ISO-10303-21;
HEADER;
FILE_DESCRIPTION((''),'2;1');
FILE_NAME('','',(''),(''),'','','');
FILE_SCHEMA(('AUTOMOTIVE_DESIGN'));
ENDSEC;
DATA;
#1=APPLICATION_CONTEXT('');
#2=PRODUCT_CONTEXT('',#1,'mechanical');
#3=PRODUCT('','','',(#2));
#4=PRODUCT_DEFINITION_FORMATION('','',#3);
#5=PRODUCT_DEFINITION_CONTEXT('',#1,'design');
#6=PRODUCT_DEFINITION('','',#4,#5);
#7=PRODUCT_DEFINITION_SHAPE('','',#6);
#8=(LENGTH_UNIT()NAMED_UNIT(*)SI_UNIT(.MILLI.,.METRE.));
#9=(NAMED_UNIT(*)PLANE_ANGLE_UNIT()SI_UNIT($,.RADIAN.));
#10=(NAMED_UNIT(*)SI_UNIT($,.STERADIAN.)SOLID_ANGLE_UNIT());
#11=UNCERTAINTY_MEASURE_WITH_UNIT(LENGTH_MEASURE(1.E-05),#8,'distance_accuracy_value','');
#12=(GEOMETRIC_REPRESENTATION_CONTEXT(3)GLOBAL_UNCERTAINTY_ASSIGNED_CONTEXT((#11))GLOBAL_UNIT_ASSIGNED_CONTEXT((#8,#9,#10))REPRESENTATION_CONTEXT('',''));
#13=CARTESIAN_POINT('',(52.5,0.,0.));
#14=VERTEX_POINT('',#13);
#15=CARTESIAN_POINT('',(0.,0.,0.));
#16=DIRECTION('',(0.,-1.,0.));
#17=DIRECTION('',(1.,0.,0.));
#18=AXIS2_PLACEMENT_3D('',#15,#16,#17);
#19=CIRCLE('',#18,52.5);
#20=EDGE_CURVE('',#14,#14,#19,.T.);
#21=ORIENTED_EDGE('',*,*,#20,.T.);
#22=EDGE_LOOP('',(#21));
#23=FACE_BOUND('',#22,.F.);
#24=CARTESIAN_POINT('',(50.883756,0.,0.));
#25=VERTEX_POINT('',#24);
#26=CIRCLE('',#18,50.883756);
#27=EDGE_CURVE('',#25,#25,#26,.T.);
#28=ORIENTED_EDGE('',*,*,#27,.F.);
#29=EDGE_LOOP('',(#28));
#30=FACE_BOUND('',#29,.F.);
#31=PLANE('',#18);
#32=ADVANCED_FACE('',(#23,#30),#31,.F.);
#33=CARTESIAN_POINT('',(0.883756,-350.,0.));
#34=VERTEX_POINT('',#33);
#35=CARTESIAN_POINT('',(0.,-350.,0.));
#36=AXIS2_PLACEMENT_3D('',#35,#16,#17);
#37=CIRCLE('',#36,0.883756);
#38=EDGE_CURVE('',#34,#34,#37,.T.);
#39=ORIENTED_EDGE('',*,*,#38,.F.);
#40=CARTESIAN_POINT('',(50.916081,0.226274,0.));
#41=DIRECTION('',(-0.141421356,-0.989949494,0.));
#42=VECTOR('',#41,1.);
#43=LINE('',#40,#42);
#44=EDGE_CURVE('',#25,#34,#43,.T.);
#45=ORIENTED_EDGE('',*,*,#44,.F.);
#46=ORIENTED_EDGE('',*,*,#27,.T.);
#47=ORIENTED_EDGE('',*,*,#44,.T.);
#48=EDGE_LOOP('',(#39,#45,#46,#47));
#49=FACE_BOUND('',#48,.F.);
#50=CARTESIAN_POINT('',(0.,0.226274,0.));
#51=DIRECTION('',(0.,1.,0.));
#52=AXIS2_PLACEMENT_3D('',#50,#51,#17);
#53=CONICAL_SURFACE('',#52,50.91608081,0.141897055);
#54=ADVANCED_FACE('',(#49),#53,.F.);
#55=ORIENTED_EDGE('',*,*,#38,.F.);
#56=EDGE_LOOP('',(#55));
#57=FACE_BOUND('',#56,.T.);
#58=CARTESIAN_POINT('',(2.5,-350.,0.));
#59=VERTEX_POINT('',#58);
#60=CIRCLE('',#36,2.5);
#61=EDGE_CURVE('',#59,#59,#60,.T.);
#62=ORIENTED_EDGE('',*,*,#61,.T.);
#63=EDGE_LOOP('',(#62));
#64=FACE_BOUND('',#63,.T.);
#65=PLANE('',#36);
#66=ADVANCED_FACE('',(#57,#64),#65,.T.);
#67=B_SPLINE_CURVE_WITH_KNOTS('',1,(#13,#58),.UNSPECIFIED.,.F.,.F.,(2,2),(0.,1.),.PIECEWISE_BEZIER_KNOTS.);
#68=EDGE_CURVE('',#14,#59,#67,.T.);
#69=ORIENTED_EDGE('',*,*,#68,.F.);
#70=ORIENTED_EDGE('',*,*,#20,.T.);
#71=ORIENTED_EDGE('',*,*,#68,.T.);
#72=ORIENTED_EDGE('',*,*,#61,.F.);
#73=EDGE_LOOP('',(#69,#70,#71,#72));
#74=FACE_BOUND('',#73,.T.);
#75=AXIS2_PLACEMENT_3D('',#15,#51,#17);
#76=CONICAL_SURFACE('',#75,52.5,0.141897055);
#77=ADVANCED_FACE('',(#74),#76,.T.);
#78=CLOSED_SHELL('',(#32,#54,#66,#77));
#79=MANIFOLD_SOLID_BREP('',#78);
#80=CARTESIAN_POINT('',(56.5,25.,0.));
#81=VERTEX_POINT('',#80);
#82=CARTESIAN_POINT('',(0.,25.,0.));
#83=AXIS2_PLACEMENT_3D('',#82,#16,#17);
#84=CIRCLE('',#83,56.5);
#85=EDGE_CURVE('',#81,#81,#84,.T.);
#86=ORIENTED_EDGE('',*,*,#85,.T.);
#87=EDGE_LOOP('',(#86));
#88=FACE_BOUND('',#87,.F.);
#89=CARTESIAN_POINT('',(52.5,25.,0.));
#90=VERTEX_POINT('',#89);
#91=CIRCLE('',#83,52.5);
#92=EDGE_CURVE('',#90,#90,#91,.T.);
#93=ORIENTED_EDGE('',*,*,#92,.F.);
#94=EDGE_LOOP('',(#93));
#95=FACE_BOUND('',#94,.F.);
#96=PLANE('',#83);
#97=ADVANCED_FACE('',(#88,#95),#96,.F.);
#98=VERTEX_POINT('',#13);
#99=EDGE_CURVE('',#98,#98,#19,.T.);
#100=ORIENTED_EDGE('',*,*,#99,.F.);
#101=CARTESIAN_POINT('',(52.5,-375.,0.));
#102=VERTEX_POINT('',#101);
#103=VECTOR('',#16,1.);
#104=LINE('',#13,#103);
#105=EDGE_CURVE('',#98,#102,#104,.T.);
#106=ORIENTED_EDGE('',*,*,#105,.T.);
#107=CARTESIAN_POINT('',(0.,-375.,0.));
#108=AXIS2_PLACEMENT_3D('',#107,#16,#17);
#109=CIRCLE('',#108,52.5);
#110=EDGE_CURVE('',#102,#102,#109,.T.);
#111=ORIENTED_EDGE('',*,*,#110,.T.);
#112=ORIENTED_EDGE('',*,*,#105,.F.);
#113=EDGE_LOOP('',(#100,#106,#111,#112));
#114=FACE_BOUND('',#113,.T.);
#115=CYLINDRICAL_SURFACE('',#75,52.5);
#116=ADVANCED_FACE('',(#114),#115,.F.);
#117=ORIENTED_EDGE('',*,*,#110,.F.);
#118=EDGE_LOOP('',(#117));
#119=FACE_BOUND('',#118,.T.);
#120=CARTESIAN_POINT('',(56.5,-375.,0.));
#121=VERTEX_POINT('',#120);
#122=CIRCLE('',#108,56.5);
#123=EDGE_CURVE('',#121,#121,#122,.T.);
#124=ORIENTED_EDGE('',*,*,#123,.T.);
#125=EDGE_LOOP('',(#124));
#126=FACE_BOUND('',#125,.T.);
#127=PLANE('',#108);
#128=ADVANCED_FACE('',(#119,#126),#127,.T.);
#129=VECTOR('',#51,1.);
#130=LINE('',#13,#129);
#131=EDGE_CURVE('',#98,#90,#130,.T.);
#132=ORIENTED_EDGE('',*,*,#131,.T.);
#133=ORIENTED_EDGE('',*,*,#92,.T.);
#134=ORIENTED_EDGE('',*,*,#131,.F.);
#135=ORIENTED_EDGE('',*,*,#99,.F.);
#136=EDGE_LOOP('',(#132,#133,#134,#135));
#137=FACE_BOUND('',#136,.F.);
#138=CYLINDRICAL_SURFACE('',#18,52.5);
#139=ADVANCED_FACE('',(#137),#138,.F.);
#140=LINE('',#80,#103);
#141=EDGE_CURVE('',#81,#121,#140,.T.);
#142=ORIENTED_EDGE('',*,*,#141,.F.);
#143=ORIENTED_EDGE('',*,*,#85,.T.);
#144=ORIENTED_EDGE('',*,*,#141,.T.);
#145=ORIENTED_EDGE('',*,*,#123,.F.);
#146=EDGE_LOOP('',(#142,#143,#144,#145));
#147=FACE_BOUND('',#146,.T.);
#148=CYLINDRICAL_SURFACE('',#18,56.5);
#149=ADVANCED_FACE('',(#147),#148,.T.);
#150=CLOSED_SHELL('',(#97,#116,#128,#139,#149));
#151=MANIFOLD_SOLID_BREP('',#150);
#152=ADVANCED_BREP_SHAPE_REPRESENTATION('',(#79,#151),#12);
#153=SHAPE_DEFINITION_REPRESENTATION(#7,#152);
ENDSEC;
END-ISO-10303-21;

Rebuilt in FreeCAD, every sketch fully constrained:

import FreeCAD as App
import Part
import Sketcher
from FreeCAD import Vector


def faces_at(feature, points):
    """Names of the faces that lie closest to the given points."""
    faces = feature.Shape.Faces
    near = lambda p: min(range(len(faces)), key=lambda i: faces[i].distToShape(Part.Vertex(*p))[0])
    return sorted({f"Face{near(p) + 1}" for p in points})

doc = App.newDocument("Part")
params = doc.addObject("Spreadsheet::Sheet", "Params")
for row, (alias, value) in enumerate([
    ("sketch1_diameter", "105 mm"),
    ("sketch2_diameter", "5 mm"),
    ("thickness_wall", "1.6 mm"),
    ("sketch3_diameter", "113 mm"),
    ("sketch3_diameter2", "105 mm"),
    ("pad1_length", "375 mm"),
    ("pad1_length2", "25 mm"),
], start=1):
    params.set(f"A{row}", alias)
    params.set(f"B{row}", "=" + value)
    params.setAlias(f"B{row}", alias)

body = doc.addObject("PartDesign::Body", "Body")

sketch1 = body.newObject("Sketcher::SketchObject", "Sketch")
sketch1.AttachmentSupport = (doc.getObject("XZ_Plane"), [""])
sketch1.MapMode = "FlatFace"
sketch1.addGeometry(Part.Circle(Vector(0, 0, 0), Vector(0, 0, 1), 52), False)
sketch1.addConstraint(Sketcher.Constraint("Coincident", 0, 3, -1, 1))
sketch1.addConstraint(Sketcher.Constraint("Diameter", 0, 105.0))
sketch1.setExpression("Constraints[1]", "Params.sketch1_diameter")

sketch2 = body.newObject("Sketcher::SketchObject", "Sketch001")
sketch2.AttachmentSupport = (doc.getObject("XZ_Plane"), [""])
sketch2.MapMode = "FlatFace"
sketch2.AttachmentOffset = App.Placement(Vector(0, 0, 350), App.Rotation())
sketch2.addGeometry(Part.Circle(Vector(0, 0, 0), Vector(0, 0, 1), 2.5), False)
sketch2.addConstraint(Sketcher.Constraint("Coincident", 0, 3, -1, 1))
sketch2.addConstraint(Sketcher.Constraint("Diameter", 0, 5.0))
sketch2.setExpression("Constraints[1]", "Params.sketch2_diameter")

additiveloft = body.newObject("PartDesign::AdditiveLoft", "AdditiveLoft")
additiveloft.Profile = sketch1
additiveloft.Sections = [sketch2]
doc.recompute()

thickness = body.newObject("PartDesign::Thickness", "Thickness")
thickness.Base = (additiveloft, faces_at(additiveloft, [(0, 0, 0), (0, -350, 0)]))
thickness.setExpression("Value", "Params.thickness_wall")
thickness.Reversed = True
thickness.Join = "Intersection"
body2 = doc.addObject("PartDesign::Body", "Body001")

sketch3 = body2.newObject("Sketcher::SketchObject", "Sketch002")
sketch3.AttachmentSupport = (doc.getObject("XZ_Plane001"), [""])
sketch3.MapMode = "FlatFace"
sketch3.addGeometry(Part.Circle(Vector(0, 0, 0), Vector(0, 0, 1), 56), False)
sketch3.addGeometry(Part.Circle(Vector(0, 0, 0), Vector(0, 0, 1), 52), False)
sketch3.addConstraint(Sketcher.Constraint("Coincident", 0, 3, -1, 1))
sketch3.addConstraint(Sketcher.Constraint("Coincident", 1, 3, -1, 1))
sketch3.addConstraint(Sketcher.Constraint("Diameter", 0, 113.0))
sketch3.addConstraint(Sketcher.Constraint("Diameter", 1, 105.0))
sketch3.setExpression("Constraints[2]", "Params.sketch3_diameter")
sketch3.setExpression("Constraints[3]", "Params.sketch3_diameter2")
pad1 = body2.newObject("PartDesign::Pad", "Pad")
pad1.Profile = sketch3
pad1.Type = "TwoLengths"
pad1.setExpression("Length", "Params.pad1_length")
pad1.setExpression("Length2", "Params.pad1_length2")

doc.recompute()
